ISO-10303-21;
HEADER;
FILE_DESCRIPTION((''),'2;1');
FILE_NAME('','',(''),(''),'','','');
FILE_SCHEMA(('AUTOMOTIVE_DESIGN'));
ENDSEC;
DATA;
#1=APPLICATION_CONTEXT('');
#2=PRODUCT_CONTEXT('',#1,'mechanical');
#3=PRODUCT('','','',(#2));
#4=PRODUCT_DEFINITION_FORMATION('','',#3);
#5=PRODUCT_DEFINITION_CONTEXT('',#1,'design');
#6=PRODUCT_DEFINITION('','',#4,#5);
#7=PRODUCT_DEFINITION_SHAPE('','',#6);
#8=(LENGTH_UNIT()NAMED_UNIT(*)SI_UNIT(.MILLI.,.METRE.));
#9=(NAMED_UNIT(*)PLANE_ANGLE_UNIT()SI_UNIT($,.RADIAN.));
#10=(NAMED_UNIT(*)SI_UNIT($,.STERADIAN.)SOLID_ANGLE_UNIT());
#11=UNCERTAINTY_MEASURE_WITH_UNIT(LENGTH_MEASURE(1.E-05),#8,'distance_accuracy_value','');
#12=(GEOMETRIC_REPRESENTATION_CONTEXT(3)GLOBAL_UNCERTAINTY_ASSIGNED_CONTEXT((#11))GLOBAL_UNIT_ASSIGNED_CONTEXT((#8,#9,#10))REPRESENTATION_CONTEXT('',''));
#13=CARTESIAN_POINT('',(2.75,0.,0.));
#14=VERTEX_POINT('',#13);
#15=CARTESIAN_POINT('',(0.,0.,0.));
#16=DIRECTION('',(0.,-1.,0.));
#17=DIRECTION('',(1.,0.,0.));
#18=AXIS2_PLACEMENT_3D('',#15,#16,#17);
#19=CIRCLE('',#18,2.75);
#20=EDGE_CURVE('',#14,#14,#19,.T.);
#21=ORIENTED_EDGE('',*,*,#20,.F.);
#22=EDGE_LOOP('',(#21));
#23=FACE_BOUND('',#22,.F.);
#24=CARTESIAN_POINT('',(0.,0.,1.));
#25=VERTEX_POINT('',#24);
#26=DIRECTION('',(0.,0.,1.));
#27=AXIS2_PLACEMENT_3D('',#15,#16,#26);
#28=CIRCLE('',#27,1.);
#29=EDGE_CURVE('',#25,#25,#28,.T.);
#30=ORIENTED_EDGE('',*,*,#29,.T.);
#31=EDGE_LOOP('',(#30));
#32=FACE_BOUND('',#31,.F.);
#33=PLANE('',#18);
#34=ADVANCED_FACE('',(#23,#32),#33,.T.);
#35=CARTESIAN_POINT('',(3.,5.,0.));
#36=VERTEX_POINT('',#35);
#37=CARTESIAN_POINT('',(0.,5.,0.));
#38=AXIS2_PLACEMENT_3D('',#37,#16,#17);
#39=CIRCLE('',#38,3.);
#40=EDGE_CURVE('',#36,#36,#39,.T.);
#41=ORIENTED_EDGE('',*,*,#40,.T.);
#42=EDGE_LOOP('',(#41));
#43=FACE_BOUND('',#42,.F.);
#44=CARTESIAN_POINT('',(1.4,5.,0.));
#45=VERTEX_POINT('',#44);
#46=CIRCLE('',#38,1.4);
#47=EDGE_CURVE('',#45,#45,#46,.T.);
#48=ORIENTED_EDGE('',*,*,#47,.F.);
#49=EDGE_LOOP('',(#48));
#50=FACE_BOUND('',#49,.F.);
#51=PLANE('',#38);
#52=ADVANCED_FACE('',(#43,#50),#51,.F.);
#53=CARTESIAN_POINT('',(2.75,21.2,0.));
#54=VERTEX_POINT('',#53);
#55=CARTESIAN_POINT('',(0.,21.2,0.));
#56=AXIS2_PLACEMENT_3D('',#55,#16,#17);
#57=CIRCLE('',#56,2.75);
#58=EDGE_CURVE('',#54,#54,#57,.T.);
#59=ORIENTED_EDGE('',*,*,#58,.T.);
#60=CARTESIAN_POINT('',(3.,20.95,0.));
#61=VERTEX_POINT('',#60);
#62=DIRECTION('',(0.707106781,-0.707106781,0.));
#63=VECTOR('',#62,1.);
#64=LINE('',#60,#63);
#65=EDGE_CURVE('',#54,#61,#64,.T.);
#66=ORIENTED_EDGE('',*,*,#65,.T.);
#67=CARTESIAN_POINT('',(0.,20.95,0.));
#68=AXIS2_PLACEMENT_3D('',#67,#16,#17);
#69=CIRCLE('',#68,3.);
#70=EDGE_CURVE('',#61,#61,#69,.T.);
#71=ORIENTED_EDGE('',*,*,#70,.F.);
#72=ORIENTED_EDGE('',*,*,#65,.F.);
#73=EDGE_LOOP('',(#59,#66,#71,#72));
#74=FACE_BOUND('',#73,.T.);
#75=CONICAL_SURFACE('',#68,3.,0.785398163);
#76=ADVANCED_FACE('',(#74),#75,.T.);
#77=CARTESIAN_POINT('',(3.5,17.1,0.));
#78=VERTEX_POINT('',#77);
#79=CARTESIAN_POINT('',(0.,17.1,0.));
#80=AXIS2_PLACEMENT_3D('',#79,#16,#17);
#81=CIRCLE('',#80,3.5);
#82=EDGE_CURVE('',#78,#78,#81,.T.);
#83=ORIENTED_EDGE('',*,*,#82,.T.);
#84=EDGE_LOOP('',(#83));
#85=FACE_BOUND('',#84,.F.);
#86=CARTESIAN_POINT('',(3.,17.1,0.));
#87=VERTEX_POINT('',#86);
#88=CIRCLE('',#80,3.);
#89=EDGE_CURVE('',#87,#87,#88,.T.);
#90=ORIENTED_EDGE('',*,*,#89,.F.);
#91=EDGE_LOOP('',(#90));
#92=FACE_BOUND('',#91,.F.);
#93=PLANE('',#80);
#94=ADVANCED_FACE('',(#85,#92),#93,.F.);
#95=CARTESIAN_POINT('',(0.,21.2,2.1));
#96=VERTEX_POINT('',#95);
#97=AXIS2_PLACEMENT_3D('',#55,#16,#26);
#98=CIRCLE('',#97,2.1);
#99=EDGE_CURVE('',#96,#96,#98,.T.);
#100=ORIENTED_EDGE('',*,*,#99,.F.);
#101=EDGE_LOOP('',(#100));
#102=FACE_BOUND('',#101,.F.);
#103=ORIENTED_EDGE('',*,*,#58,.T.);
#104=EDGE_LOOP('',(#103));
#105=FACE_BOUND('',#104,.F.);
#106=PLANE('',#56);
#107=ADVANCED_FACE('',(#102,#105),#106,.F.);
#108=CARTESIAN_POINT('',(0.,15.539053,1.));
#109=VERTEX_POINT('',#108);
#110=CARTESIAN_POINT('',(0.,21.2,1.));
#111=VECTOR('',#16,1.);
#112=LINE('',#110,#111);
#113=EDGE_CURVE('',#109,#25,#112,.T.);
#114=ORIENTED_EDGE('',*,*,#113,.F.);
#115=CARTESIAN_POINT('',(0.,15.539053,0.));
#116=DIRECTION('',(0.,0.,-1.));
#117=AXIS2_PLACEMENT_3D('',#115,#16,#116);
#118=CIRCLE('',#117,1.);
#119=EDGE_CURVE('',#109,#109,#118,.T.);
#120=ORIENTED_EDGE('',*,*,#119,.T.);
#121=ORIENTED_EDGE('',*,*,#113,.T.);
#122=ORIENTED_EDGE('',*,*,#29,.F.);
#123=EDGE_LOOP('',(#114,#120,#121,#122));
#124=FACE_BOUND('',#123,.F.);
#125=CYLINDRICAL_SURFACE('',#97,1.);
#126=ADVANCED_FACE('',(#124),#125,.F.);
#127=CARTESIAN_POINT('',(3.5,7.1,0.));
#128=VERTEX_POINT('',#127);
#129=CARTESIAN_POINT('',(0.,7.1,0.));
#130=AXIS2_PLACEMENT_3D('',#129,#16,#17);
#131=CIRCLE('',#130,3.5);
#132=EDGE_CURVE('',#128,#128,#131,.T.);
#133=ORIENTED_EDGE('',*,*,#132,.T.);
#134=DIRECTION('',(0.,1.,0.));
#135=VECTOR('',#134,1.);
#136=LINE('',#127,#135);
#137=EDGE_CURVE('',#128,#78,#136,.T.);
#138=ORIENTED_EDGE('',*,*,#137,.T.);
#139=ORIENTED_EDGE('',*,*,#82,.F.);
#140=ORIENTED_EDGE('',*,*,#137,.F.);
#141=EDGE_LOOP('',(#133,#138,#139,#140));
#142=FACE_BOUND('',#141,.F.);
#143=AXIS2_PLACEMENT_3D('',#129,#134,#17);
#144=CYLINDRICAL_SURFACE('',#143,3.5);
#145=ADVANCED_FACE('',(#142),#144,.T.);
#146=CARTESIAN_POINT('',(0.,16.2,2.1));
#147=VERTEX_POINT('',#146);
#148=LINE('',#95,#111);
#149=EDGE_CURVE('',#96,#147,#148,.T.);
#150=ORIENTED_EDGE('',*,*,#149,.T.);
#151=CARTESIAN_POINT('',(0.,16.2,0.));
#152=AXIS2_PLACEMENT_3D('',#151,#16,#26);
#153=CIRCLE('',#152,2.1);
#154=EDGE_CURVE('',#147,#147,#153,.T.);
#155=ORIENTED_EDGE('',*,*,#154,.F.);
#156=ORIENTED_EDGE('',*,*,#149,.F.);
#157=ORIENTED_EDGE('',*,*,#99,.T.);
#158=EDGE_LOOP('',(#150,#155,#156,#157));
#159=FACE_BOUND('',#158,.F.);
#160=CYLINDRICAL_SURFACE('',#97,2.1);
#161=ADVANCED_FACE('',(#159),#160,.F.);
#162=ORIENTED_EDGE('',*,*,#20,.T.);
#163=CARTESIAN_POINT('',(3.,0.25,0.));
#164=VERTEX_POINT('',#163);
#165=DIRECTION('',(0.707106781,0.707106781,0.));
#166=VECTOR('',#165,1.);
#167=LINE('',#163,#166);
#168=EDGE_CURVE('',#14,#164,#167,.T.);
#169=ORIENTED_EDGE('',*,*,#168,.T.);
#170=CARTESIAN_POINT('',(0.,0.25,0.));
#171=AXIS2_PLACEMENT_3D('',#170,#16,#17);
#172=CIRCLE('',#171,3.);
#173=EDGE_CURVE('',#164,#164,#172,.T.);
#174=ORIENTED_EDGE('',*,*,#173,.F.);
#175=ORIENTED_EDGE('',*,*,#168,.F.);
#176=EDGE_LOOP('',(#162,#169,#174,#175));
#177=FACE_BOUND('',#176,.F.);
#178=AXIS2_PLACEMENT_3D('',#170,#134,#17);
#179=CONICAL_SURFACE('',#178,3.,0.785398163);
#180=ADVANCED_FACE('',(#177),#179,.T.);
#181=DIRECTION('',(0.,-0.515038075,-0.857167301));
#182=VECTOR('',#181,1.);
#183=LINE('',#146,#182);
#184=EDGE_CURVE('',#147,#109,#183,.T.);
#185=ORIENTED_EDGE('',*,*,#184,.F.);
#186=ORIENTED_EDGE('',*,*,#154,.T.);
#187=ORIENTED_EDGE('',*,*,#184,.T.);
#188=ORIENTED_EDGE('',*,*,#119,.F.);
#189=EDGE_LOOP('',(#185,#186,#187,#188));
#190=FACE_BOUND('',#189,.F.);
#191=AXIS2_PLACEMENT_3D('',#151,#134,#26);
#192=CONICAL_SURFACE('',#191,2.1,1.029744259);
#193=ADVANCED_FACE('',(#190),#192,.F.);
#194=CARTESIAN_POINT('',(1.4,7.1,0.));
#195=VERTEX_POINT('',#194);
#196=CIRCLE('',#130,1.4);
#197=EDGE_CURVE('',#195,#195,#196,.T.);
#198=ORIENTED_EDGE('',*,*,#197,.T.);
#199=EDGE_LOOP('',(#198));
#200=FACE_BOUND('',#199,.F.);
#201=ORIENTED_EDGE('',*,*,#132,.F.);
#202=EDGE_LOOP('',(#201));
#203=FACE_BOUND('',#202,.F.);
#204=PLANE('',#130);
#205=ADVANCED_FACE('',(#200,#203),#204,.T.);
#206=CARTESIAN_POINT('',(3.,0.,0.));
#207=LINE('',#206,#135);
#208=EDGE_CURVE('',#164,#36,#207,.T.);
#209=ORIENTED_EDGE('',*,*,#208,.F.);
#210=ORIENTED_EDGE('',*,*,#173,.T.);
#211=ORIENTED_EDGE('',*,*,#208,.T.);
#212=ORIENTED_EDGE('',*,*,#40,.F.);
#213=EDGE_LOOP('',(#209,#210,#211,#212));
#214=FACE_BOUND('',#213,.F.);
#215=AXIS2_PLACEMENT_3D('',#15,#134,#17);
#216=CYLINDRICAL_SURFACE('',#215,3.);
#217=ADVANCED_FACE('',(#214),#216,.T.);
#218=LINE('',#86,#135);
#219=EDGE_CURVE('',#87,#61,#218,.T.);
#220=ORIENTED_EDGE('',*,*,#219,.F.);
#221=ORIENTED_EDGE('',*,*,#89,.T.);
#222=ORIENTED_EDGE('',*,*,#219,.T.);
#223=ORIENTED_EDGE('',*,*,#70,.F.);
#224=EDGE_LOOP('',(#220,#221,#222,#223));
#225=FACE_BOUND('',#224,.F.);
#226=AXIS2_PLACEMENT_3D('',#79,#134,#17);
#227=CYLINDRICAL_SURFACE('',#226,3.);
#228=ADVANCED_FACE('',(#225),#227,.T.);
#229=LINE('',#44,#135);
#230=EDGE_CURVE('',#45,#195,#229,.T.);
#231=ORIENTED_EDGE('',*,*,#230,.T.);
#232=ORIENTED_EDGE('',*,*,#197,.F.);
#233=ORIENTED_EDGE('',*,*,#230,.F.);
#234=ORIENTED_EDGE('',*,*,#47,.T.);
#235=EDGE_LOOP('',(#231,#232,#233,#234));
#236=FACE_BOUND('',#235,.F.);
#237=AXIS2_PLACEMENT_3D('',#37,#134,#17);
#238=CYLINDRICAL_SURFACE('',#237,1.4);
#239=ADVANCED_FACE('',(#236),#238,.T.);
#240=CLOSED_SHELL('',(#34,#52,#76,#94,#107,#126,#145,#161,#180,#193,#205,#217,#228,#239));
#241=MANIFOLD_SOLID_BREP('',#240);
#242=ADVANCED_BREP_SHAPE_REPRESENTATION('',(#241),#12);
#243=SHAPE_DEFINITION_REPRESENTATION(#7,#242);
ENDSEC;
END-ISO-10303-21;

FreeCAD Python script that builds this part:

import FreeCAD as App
import Part
import Sketcher
from FreeCAD import Vector


def edges_at(feature, points):
    """Names of the edges that pass closest to the given points."""
    edges = feature.Shape.Edges
    near = lambda p: min(range(len(edges)), key=lambda i: edges[i].distToShape(Part.Vertex(*p))[0])
    return sorted({f"Edge{near(p) + 1}" for p in points})

doc = App.newDocument("Part")
body = doc.addObject("PartDesign::Body", "Body")

# Sketch on XY plane
sketch1 = body.newObject("Sketcher::SketchObject", "Sketch")
sketch1.AttachmentSupport = (doc.getObject("XY_Plane"), [""])
sketch1.MapMode = "FlatFace"
sketch1.addGeometry([
    Part.LineSegment(Vector(0, 21.2, 0), Vector(0, 0, 0)),  # 0
    Part.LineSegment(Vector(0, 0, 0), Vector(3, 0, 0)),  # 1
    Part.LineSegment(Vector(3, 0, 0), Vector(3, 5, 0)),  # 2
    Part.LineSegment(Vector(3, 5, 0), Vector(1.4, 5, 0)),  # 3
    Part.LineSegment(Vector(1.4, 5, 0), Vector(1.4, 7.1, 0)),  # 4
    Part.LineSegment(Vector(1.4, 7.1, 0), Vector(3.5, 7.1, 0)),  # 5
    Part.LineSegment(Vector(3.5, 7.1, 0), Vector(3.5, 17.1, 0)),  # 6
    Part.LineSegment(Vector(3.5, 17.1, 0), Vector(3, 17.1, 0)),  # 7
    Part.LineSegment(Vector(3, 17.1, 0), Vector(3, 21.2, 0)),  # 8
    Part.LineSegment(Vector(3, 21.2, 0), Vector(0, 21.2, 0)),  # 9
], False)
sketch1.addConstraint([
    Sketcher.Constraint("Coincident", 0, 2, 1, 1),
    Sketcher.Constraint("Coincident", 1, 2, 2, 1),
    Sketcher.Constraint("Coincident", 2, 2, 3, 1),
    Sketcher.Constraint("Coincident", 3, 2, 4, 1),
    Sketcher.Constraint("Coincident", 4, 2, 5, 1),
    Sketcher.Constraint("Coincident", 5, 2, 6, 1),
    Sketcher.Constraint("Coincident", 6, 2, 7, 1),
    Sketcher.Constraint("Coincident", 7, 2, 8, 1),
    Sketcher.Constraint("Coincident", 8, 2, 9, 1),
    Sketcher.Constraint("Coincident", 9, 2, 0, 1),
    Sketcher.Constraint("Vertical", 0),
    Sketcher.Constraint("Horizontal", 1),
    Sketcher.Constraint("Vertical", 2),
    Sketcher.Constraint("Horizontal", 3),
    Sketcher.Constraint("Vertical", 4),
    Sketcher.Constraint("Horizontal", 5),
    Sketcher.Constraint("Vertical", 6),
    Sketcher.Constraint("Horizontal", 7),
    Sketcher.Constraint("Vertical", 8),
    Sketcher.Constraint("Horizontal", 9),
    Sketcher.Constraint("Coincident", 0, 2, -1, 1),
    Sketcher.Constraint("Vertical", 2, 2, 7, 2),
    Sketcher.Constraint("Equal", 5, 4),
    Sketcher.Constraint("DistanceX", 1, 1, 1, 2, 3.0),
    Sketcher.Constraint("DistanceY", 6, 1, 6, 2, 10.0),
    Sketcher.Constraint("DistanceX", 5, 1, 5, 2, 2.1),
    Sketcher.Constraint("DistanceX", -1, 1, 3, 2, 1.4),
    Sketcher.Constraint("DistanceY", -1, 1, 4, 2, 7.1),
    Sketcher.Constraint("DistanceY", 5, 2, 8, 2, 14.1),
])
revolution = body.newObject("PartDesign::Revolution", "Revolution")
revolution.Profile = sketch1
revolution.ReferenceAxis = (sketch1, ["V_Axis"])
revolution.Angle = 360

# Sketch on XZ plane
sketch2 = body.newObject("Sketcher::SketchObject", "Sketch001")
sketch2.AttachmentSupport = (doc.getObject("XZ_Plane"), [""])
sketch2.MapMode = "FlatFace"
sketch2.AttachmentOffset = App.Placement(Vector(0, 0, -21.2), App.Rotation())
sketch2.addGeometry(Part.Circle(Vector(0, 0, 0), Vector(0, 0, 1), 1), False)
sketch2.addConstraint([
    Sketcher.Constraint("Coincident", 0, 3, -1, 1),
    Sketcher.Constraint("Diameter", 0, 2.0),
])
doc.recompute()
hole = body.newObject("PartDesign::Hole", "Hole")
hole.Profile = sketch2
hole.ThreadType = "None"
hole.Diameter = 2
hole.DepthType = "ThroughAll"
hole.Reversed = True

# Sketch on XZ plane
sketch3 = body.newObject("Sketcher::SketchObject", "Sketch002")
sketch3.AttachmentSupport = (doc.getObject("XZ_Plane"), [""])
sketch3.MapMode = "FlatFace"
sketch3.AttachmentOffset = App.Placement(Vector(0, 0, -21.2), App.Rotation())
sketch3.addGeometry(Part.Circle(Vector(0, 0, 0), Vector(0, 0, 1), 2.1), False)
sketch3.addConstraint([
    Sketcher.Constraint("Coincident", 0, 3, -1, 1),
    Sketcher.Constraint("Diameter", 0, 4.2),
])
doc.recompute()
hole2 = body.newObject("PartDesign::Hole", "Hole001")
hole2.Profile = sketch3
hole2.ThreadType = "None"
hole2.Diameter = 4.2
hole2.DepthType = "Dimension"
hole2.Depth = 5
hole2.DrillPoint = "Angled"
hole2.DrillPointAngle = 118
hole2.Reversed = True
doc.recompute()

chamfer = body.newObject("PartDesign::Chamfer", "Chamfer")
chamfer.Base = (hole2, edges_at(hole2, [(-3, 21.2, 0)]))
chamfer.Size = 0.25
doc.recompute()

chamfer2 = body.newObject("PartDesign::Chamfer", "Chamfer001")
chamfer2.Base = (chamfer, edges_at(chamfer, [(-3, 0, 0)]))
chamfer2.Size = 0.25

doc.recompute()
